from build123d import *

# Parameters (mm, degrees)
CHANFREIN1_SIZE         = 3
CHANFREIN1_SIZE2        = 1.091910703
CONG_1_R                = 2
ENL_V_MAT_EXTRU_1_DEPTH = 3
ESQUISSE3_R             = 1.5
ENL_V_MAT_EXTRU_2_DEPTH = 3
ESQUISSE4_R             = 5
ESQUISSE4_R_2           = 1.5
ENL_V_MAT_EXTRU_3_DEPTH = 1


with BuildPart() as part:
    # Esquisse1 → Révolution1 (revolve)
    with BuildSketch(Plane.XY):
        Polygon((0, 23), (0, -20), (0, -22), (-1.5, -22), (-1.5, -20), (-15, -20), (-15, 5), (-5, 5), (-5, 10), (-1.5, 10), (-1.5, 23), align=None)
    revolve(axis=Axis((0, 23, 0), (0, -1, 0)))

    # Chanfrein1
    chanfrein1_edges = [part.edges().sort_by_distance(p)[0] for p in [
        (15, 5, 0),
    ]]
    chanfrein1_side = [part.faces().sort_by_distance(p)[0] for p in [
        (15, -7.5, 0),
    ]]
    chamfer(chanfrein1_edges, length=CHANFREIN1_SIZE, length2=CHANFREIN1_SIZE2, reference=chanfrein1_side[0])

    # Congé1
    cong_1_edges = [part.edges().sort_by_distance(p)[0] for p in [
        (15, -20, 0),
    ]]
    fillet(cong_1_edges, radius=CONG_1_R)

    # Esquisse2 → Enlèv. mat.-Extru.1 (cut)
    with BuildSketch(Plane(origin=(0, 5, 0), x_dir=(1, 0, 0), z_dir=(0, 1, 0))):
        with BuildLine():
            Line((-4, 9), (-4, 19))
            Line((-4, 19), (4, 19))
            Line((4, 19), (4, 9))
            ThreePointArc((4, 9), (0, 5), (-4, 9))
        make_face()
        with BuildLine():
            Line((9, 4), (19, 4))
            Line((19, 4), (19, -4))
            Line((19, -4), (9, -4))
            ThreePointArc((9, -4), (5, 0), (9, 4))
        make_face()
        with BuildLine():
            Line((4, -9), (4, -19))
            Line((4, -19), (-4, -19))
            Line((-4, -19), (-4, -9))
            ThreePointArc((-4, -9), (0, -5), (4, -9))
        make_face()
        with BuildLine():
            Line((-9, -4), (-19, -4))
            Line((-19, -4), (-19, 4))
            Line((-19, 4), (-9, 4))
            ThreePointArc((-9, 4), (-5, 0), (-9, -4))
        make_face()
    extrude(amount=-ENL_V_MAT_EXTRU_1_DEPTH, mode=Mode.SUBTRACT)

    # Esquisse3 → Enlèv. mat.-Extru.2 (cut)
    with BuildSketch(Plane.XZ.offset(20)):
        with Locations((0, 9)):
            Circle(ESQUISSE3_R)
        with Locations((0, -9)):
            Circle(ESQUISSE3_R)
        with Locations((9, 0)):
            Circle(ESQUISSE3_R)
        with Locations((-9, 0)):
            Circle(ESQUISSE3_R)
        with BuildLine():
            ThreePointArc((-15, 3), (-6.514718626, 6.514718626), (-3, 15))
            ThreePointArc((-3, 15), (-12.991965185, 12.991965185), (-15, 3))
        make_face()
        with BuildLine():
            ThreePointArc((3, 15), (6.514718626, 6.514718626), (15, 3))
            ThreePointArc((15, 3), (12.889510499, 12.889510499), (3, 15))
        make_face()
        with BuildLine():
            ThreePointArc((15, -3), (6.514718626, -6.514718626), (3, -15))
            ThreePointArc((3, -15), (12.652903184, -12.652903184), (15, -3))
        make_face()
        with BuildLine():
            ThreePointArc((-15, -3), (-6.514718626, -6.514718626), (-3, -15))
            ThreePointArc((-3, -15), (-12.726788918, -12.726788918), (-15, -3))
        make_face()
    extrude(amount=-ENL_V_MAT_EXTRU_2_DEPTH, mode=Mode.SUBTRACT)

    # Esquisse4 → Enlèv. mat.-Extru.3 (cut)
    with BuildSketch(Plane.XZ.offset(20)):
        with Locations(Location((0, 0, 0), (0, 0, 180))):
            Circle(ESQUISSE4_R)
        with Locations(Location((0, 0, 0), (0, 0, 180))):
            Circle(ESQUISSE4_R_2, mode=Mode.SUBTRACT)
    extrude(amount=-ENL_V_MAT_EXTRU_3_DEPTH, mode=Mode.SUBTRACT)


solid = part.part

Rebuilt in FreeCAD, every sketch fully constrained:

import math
import FreeCAD as App
import Part
import Sketcher
from FreeCAD import Vector


def edges_at(feature, points):
    """Names of the edges that pass closest to the given points."""
    edges = feature.Shape.Edges
    near = lambda p: min(range(len(edges)), key=lambda i: edges[i].distToShape(Part.Vertex(*p))[0])
    return sorted({f"Edge{near(p) + 1}" for p in points})


def add_polygon(sketch, points):
    """Adds a closed chain of lines whose ends are joined by coincident constraints."""
    first, n = sketch.GeometryCount, len(points)
    for a, b in zip(points, points[1:] + points[:1]):
        sketch.addGeometry(Part.LineSegment(App.Vector(*a, 0), App.Vector(*b, 0)), False)
    for i in range(n):
        sketch.addConstraint(Sketcher.Constraint("Coincident", first + i, 2, first + (i + 1) % n, 1))

doc = App.newDocument("Part")
body = doc.addObject("PartDesign::Body", "Body")

sketch1 = body.newObject("Sketcher::SketchObject", "Sketch")
sketch1.AttachmentSupport = (doc.getObject("XY_Plane"), [""])
sketch1.MapMode = "FlatFace"
add_polygon(sketch1, [(0, -22), (0, 23), (-1.5, 23), (-1.5, 10), (-5, 10), (-5, 5), (-15, 5), (-15, -20), (-1.5, -20), (-1.5, -22)])
sketch1.addConstraint(Sketcher.Constraint("Vertical", 0))
sketch1.addConstraint(Sketcher.Constraint("Horizontal", 1))
sketch1.addConstraint(Sketcher.Constraint("Vertical", 2))
sketch1.addConstraint(Sketcher.Constraint("Horizontal", 3))
sketch1.addConstraint(Sketcher.Constraint("Vertical", 4))
sketch1.addConstraint(Sketcher.Constraint("Horizontal", 5))
sketch1.addConstraint(Sketcher.Constraint("Vertical", 6))
sketch1.addConstraint(Sketcher.Constraint("Horizontal", 7))
sketch1.addConstraint(Sketcher.Constraint("Vertical", 8))
sketch1.addConstraint(Sketcher.Constraint("Horizontal", 9))
sketch1.addConstraint(Sketcher.Constraint("PointOnObject", 0, 2, -2))
sketch1.addConstraint(Sketcher.Constraint("Vertical", 2, 2, 7, 2))
sketch1.addConstraint(Sketcher.Constraint("DistanceX", 5, 2, 5, 1, 10.0))
sketch1.addConstraint(Sketcher.Constraint("DistanceY", 0, 1, 0, 2, 45.0))
sketch1.addConstraint(Sketcher.Constraint("DistanceY", 2, 2, 2, 1, 13.0))
sketch1.addConstraint(Sketcher.Constraint("DistanceY", 4, 2, 4, 1, 5.0))
sketch1.addConstraint(Sketcher.Constraint("DistanceY", 6, 2, 6, 1, 25.0))
sketch1.addConstraint(Sketcher.Constraint("DistanceX", 1, 2, 1, 1, 1.5))
sketch1.addConstraint(Sketcher.Constraint("DistanceX", 3, 2, 3, 1, 3.5))
sketch1.addConstraint(Sketcher.Constraint("DistanceY", -1, 1, 0, 2, 23.0))
revolution = body.newObject("PartDesign::Revolution", "Revolution")
revolution.Profile = sketch1
revolution.ReferenceAxis = (sketch1, ["V_Axis"])
revolution.Angle = 360
doc.recompute()

chamfer = body.newObject("PartDesign::Chamfer", "Chamfer")
chamfer.Base = (revolution, edges_at(revolution, [(15, 5, 0)]))
chamfer.ChamferType = "Two distances"
chamfer.Size = 3
chamfer.Size2 = 1.091911
chamfer.FlipDirection = True
doc.recompute()

fillet = body.newObject("PartDesign::Fillet", "Fillet")
fillet.Base = (chamfer, edges_at(chamfer, [(15, -20, 0)]))
fillet.Radius = 2

sketch2 = body.newObject("Sketcher::SketchObject", "Sketch001")
sketch2.AttachmentSupport = (doc.getObject("XZ_Plane"), [""])
sketch2.MapMode = "FlatFace"
sketch2.AttachmentOffset = App.Placement(Vector(0, 0, -5), App.Rotation())
sketch2.addGeometry(Part.LineSegment(Vector(-4, -19, 0), Vector(-4, -9, 0)), False)
sketch2.addGeometry(Part.ArcOfCircle(Part.Circle(Vector(0, -9, 0), Vector(0, 0, 1), 4), math.radians(0), math.radians(180)), False)
sketch2.addGeometry(Part.LineSegment(Vector(4, -9, 0), Vector(4, -19, 0)), False)
sketch2.addGeometry(Part.LineSegment(Vector(4, -19, 0), Vector(-4, -19, 0)), False)
sketch2.addGeometry(Part.LineSegment(Vector(19, -4, 0), Vector(9, -4, 0)), False)
sketch2.addGeometry(Part.ArcOfCircle(Part.Circle(Vector(9, 0, 0), Vector(0, 0, 1), 4), math.radians(90), math.radians(270)), False)
sketch2.addGeometry(Part.LineSegment(Vector(9, 4, 0), Vector(19, 4, 0)), False)
sketch2.addGeometry(Part.LineSegment(Vector(19, 4, 0), Vector(19, -4, 0)), False)
sketch2.addGeometry(Part.LineSegment(Vector(4, 19, 0), Vector(4, 9, 0)), False)
sketch2.addGeometry(Part.ArcOfCircle(Part.Circle(Vector(0, 9, 0), Vector(0, 0, 1), 4), math.radians(180), math.radians(360)), False)
sketch2.addGeometry(Part.LineSegment(Vector(-4, 9, 0), Vector(-4, 19, 0)), False)
sketch2.addGeometry(Part.LineSegment(Vector(-4, 19, 0), Vector(4, 19, 0)), False)
sketch2.addGeometry(Part.LineSegment(Vector(-19, 4, 0), Vector(-9, 4, 0)), False)
sketch2.addGeometry(Part.ArcOfCircle(Part.Circle(Vector(-9, 0, 0), Vector(0, 0, 1), 4), math.radians(-90), math.radians(90)), False)
sketch2.addGeometry(Part.LineSegment(Vector(-9, -4, 0), Vector(-19, -4, 0)), False)
sketch2.addGeometry(Part.LineSegment(Vector(-19, -4, 0), Vector(-19, 4, 0)), False)
sketch2.addConstraint(Sketcher.Constraint("Tangent", 0, 2, 1, 2))
sketch2.addConstraint(Sketcher.Constraint("Tangent", 1, 1, 2, 1))
sketch2.addConstraint(Sketcher.Constraint("Coincident", 2, 2, 3, 1))
sketch2.addConstraint(Sketcher.Constraint("Coincident", 3, 2, 0, 1))
sketch2.addConstraint(Sketcher.Constraint("Tangent", 4, 2, 5, 2))
sketch2.addConstraint(Sketcher.Constraint("Tangent", 5, 1, 6, 1))
sketch2.addConstraint(Sketcher.Constraint("Coincident", 6, 2, 7, 1))
sketch2.addConstraint(Sketcher.Constraint("Coincident", 7, 2, 4, 1))
sketch2.addConstraint(Sketcher.Constraint("Tangent", 8, 2, 9, 2))
sketch2.addConstraint(Sketcher.Constraint("Tangent", 9, 1, 10, 1))
sketch2.addConstraint(Sketcher.Constraint("Coincident", 10, 2, 11, 1))
sketch2.addConstraint(Sketcher.Constraint("Coincident", 11, 2, 8, 1))
sketch2.addConstraint(Sketcher.Constraint("Tangent", 12, 2, 13, 2))
sketch2.addConstraint(Sketcher.Constraint("Tangent", 13, 1, 14, 1))
sketch2.addConstraint(Sketcher.Constraint("Coincident", 14, 2, 15, 1))
sketch2.addConstraint(Sketcher.Constraint("Coincident", 15, 2, 12, 1))
sketch2.addConstraint(Sketcher.Constraint("Vertical", 0))
sketch2.addConstraint(Sketcher.Constraint("Vertical", 2))
sketch2.addConstraint(Sketcher.Constraint("Horizontal", 3))
sketch2.addConstraint(Sketcher.Constraint("Horizontal", 4))
sketch2.addConstraint(Sketcher.Constraint("Horizontal", 6))
sketch2.addConstraint(Sketcher.Constraint("Vertical", 7))
sketch2.addConstraint(Sketcher.Constraint("Vertical", 8))
sketch2.addConstraint(Sketcher.Constraint("Vertical", 10))
sketch2.addConstraint(Sketcher.Constraint("Horizontal", 11))
sketch2.addConstraint(Sketcher.Constraint("Horizontal", 12))
sketch2.addConstraint(Sketcher.Constraint("Horizontal", 14))
sketch2.addConstraint(Sketcher.Constraint("Vertical", 15))
sketch2.addConstraint(Sketcher.Constraint("Equal", 1, 5))
sketch2.addConstraint(Sketcher.Constraint("Equal", 5, 9))
sketch2.addConstraint(Sketcher.Constraint("Equal", 9, 13))
sketch2.addConstraint(Sketcher.Constraint("Symmetric", 1, 3, 9, 3, -1, 1))
sketch2.addConstraint(Sketcher.Constraint("Symmetric", 5, 3, 13, 3, -1, 1))
sketch2.addConstraint(Sketcher.Constraint("Symmetric", 7, 2, 14, 2, -2))
sketch2.addConstraint(Sketcher.Constraint("Symmetric", 3, 2, 10, 2, -1))
sketch2.addConstraint(Sketcher.Constraint("Equal", 14, 0))
sketch2.addConstraint(Sketcher.Constraint("Radius", 1, 4.0))
sketch2.addConstraint(Sketcher.Constraint("DistanceX", 4, 2, 4, 1, 10.0))
sketch2.addConstraint(Sketcher.Constraint("DistanceY", 1, 3, -1, 1, 9.0))
sketch2.addConstraint(Sketcher.Constraint("DistanceX", -1, 1, 5, 3, 9.0))
pocket1 = body.newObject("PartDesign::Pocket", "Pocket")
pocket1.Profile = sketch2
pocket1.Length = 3
pocket1.Reversed = True

sketch3 = body.newObject("Sketcher::SketchObject", "Sketch002")
sketch3.AttachmentSupport = (doc.getObject("XZ_Plane"), [""])
sketch3.MapMode = "FlatFace"
sketch3.AttachmentOffset = App.Placement(Vector(0, 0, 20), App.Rotation())
sketch3.addGeometry(Part.Circle(Vector(0, 9, 0), Vector(0, 0, 1), 1.5), False)
sketch3.addGeometry(Part.Circle(Vector(0, -9, 0), Vector(0, 0, 1), 1.5), False)
sketch3.addGeometry(Part.Circle(Vector(9, 0, 0), Vector(0, 0, 1), 1.5), False)
sketch3.addGeometry(Part.Circle(Vector(-9, 0, 0), Vector(0, 0, 1), 1.5), False)
sketch3.addGeometry(Part.ArcOfCircle(Part.Circle(Vector(-15, 15, 0), Vector(0, 0, 1), 12), math.radians(-90), math.radians(0)), False)
sketch3.addGeometry(Part.ArcOfCircle(Part.Circle(Vector(-6.5, 6.5, 0), Vector(0, 0, 1), 9.2), math.radians(68), math.radians(202)), False)
sketch3.addGeometry(Part.ArcOfCircle(Part.Circle(Vector(15, 15, 0), Vector(0, 0, 1), 12), math.radians(-180), math.radians(-90)), False)
sketch3.addGeometry(Part.ArcOfCircle(Part.Circle(Vector(6.3, 6.3, 0), Vector(0, 0, 1), 9.3), math.radians(-21), math.radians(111)), False)
sketch3.addGeometry(Part.ArcOfCircle(Part.Circle(Vector(15, -15, 0), Vector(0, 0, 1), 12), math.radians(90), math.radians(180)), False)
sketch3.addGeometry(Part.ArcOfCircle(Part.Circle(Vector(5.9, -5.9, 0), Vector(0, 0, 1), 9.6), math.radians(-108), math.radians(18)), False)
sketch3.addGeometry(Part.ArcOfCircle(Part.Circle(Vector(-15, -15, 0), Vector(0, 0, 1), 12), math.radians(0), math.radians(90)), False)
sketch3.addGeometry(Part.ArcOfCircle(Part.Circle(Vector(-6, -6, 0), Vector(0, 0, 1), 9.5), math.radians(161), math.radians(289)), False)
sketch3.addConstraint(Sketcher.Constraint("Coincident", 4, 1, 5, 2))
sketch3.addConstraint(Sketcher.Constraint("Coincident", 5, 1, 4, 2))
sketch3.addConstraint(Sketcher.Constraint("Coincident", 6, 1, 7, 2))
sketch3.addConstraint(Sketcher.Constraint("Coincident", 7, 1, 6, 2))
sketch3.addConstraint(Sketcher.Constraint("Coincident", 8, 1, 9, 2))
sketch3.addConstraint(Sketcher.Constraint("Coincident", 9, 1, 8, 2))
sketch3.addConstraint(Sketcher.Constraint("Coincident", 10, 1, 11, 2))
sketch3.addConstraint(Sketcher.Constraint("Coincident", 11, 1, 10, 2))
sketch3.addConstraint(Sketcher.Constraint("Equal", 0, 1))
sketch3.addConstraint(Sketcher.Constraint("Equal", 1, 2))
sketch3.addConstraint(Sketcher.Constraint("Equal", 2, 3))
sketch3.addConstraint(Sketcher.Constraint("Equal", 4, 6))
sketch3.addConstraint(Sketcher.Constraint("Equal", 6, 8))
sketch3.addConstraint(Sketcher.Constraint("Equal", 8, 10))
sketch3.addConstraint(Sketcher.Constraint("Symmetric", 0, 3, 1, 3, -1, 1))
sketch3.addConstraint(Sketcher.Constraint("Symmetric", 2, 3, 3, 3, -1, 1))
sketch3.addConstraint(Sketcher.Constraint("Symmetric", 4, 3, 8, 3, -1, 1))
sketch3.addConstraint(Sketcher.Constraint("Symmetric", 6, 3, 10, 3, -1, 1))
sketch3.addConstraint(Sketcher.Constraint("Symmetric", 4, 3, 6, 3, -2))
sketch3.addConstraint(Sketcher.Constraint("PointOnObject", 0, 3, -2))
sketch3.addConstraint(Sketcher.Constraint("PointOnObject", 2, 3, -1))
sketch3.addConstraint(Sketcher.Constraint("Horizontal", 6, 3, 5, 1))
sketch3.addConstraint(Sketcher.Constraint("Horizontal", 5, 1, 6, 1))
sketch3.addConstraint(Sketcher.Constraint("Horizontal", 10, 3, 9, 1))
sketch3.addConstraint(Sketcher.Constraint("Horizontal", 9, 1, 10, 1))
sketch3.addConstraint(Sketcher.Constraint("Vertical", 10, 3, 4, 1))
sketch3.addConstraint(Sketcher.Constraint("Vertical", 8, 3, 7, 1))
sketch3.addConstraint(Sketcher.Constraint("Vertical", 7, 1, 8, 1))
sketch3.addConstraint(Sketcher.Constraint("Vertical", 4, 1, 11, 1))
sketch3.addConstraint(Sketcher.Constraint("Diameter", 0, 3.0))
sketch3.addConstraint(Sketcher.Constraint("Radius", 4, 12.0))
sketch3.addConstraint(Sketcher.Constraint("DistanceY", -1, 1, 0, 3, 9.0))
sketch3.addConstraint(Sketcher.Constraint("DistanceX", -1, 1, 2, 3, 9.0))
sketch3.addConstraint(Sketcher.Constraint("DistanceX", 4, 3, -1, 1, 15.0))
sketch3.addConstraint(Sketcher.Constraint("DistanceY", -1, 1, 4, 3, 15.0))
sketch3.addConstraint(Sketcher.Constraint("Radius", 7, 9.295042))
sketch3.addConstraint(Sketcher.Constraint("Radius", 11, 9.465741))
sketch3.addConstraint(Sketcher.Constraint("DistanceY", 7, 3, 5, 3, 0.170002))
sketch3.addConstraint(Sketcher.Constraint("Radius", 9, 9.551654))
pocket2 = body.newObject("PartDesign::Pocket", "Pocket001")
pocket2.Profile = sketch3
pocket2.Length = 3

sketch4 = body.newObject("Sketcher::SketchObject", "Sketch003")
sketch4.AttachmentSupport = (doc.getObject("XZ_Plane"), [""])
sketch4.MapMode = "FlatFace"
sketch4.AttachmentOffset = App.Placement(Vector(0, 0, 20), App.Rotation())
sketch4.addGeometry(Part.Circle(Vector(0, 0, 0), Vector(0, 0, 1), 5), False)
sketch4.addGeometry(Part.Circle(Vector(0, 0, 0), Vector(0, 0, 1), 1.5), False)
sketch4.addConstraint(Sketcher.Constraint("Coincident", 0, 3, -1, 1))
sketch4.addConstraint(Sketcher.Constraint("Coincident", 1, 3, -1, 1))
sketch4.addConstraint(Sketcher.Constraint("Diameter", 0, 10.0))
sketch4.addConstraint(Sketcher.Constraint("Diameter", 1, 3.0))
pocket3 = body.newObject("PartDesign::Pocket", "Pocket002")
pocket3.Profile = sketch4
pocket3.Length = 1

doc.recompute()
